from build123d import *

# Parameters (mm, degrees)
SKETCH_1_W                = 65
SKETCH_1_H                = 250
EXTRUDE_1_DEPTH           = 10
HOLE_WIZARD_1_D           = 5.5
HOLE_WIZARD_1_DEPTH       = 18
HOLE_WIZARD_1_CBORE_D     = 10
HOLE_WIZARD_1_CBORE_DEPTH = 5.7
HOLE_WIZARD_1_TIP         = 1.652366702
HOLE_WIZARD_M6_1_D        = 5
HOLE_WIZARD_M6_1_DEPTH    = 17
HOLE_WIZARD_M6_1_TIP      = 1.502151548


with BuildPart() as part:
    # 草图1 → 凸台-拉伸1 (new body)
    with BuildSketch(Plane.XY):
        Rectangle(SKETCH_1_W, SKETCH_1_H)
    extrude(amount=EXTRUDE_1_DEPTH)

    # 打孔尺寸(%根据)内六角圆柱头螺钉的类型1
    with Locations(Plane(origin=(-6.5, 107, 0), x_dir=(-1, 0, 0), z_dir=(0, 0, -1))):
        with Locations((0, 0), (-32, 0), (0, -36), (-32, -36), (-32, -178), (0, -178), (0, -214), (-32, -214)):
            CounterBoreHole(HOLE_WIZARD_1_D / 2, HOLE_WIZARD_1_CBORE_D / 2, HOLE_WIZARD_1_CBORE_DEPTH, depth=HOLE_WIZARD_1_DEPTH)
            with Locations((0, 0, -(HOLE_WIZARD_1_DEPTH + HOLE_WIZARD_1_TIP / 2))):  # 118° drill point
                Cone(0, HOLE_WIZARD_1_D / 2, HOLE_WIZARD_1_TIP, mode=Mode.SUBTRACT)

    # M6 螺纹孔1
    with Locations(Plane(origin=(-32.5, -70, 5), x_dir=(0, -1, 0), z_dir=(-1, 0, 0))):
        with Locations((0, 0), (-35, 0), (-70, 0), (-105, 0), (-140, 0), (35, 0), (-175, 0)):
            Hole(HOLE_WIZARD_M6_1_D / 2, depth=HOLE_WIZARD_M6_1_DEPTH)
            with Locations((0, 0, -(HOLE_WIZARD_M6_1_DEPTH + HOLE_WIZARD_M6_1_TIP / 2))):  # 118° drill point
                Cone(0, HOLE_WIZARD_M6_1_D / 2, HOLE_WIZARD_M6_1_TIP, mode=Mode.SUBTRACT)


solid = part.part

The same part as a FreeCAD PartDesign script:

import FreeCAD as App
import Part
import Sketcher

V = App.Vector
Q = App.Units.Quantity

doc = App.newDocument("Part")
body = doc.addObject("PartDesign::Body", "Body")

# Sketch on XY plane
sketch1 = body.newObject("Sketcher::SketchObject", "Sketch")
sketch1.AttachmentSupport = (doc.getObject("XY_Plane"), [""])
sketch1.MapMode = "FlatFace"
sketch1.addGeometry([
    Part.LineSegment(V(-32.5, 125, 0), V(-32.5, -125, 0)),
    Part.LineSegment(V(-32.5, -125, 0), V(32.5, -125, 0)),
    Part.LineSegment(V(32.5, -125, 0), V(32.5, 125, 0)),
    Part.LineSegment(V(32.5, 125, 0), V(-32.5, 125, 0)),
], False)
sketch1.addConstraint([
    Sketcher.Constraint("Coincident", 0, 2, 1, 1),
    Sketcher.Constraint("Coincident", 1, 2, 2, 1),
    Sketcher.Constraint("Coincident", 2, 2, 3, 1),
    Sketcher.Constraint("Coincident", 3, 2, 0, 1),
    Sketcher.Constraint("Vertical", 0),
    Sketcher.Constraint("Horizontal", 1),
    Sketcher.Constraint("Vertical", 2),
    Sketcher.Constraint("Horizontal", 3),
    Sketcher.Constraint("Symmetric", 0, 2, 2, 2, -1, 1),
    Sketcher.Constraint("DistanceX", 1, 1, 1, 2, Q("65 mm")),
    Sketcher.Constraint("DistanceY", 0, 2, 0, 1, Q("250 mm")),
])
pad1 = body.newObject("PartDesign::Pad", "Pad")
pad1.Profile = sketch1
pad1.Length = 10

# Sketch on XY plane
sketch2 = body.newObject("Sketcher::SketchObject", "Sketch001")
sketch2.AttachmentSupport = (doc.getObject("XY_Plane"), [""])
sketch2.MapMode = "FlatFace"
sketch2.addGeometry([
    Part.Circle(V(-6.5, 107, 0), V(0, 0, 1), 2.75),  # 0
    Part.Circle(V(25.5, 107, 0), V(0, 0, 1), 2.75),  # 1
    Part.Circle(V(-6.5, 71, 0), V(0, 0, 1), 2.75),  # 2
    Part.Circle(V(25.5, 71, 0), V(0, 0, 1), 2.75),  # 3
    Part.Circle(V(25.5, -71, 0), V(0, 0, 1), 2.75),  # 4
    Part.Circle(V(-6.5, -71, 0), V(0, 0, 1), 2.75),  # 5
    Part.Circle(V(-6.5, -107, 0), V(0, 0, 1), 2.75),  # 6
    Part.Circle(V(25.5, -107, 0), V(0, 0, 1), 2.75),  # 7
], False)
sketch2.addConstraint([
    Sketcher.Constraint("Equal", 0, 1),
    Sketcher.Constraint("Equal", 1, 2),
    Sketcher.Constraint("Equal", 2, 3),
    Sketcher.Constraint("Equal", 3, 4),
    Sketcher.Constraint("Equal", 4, 5),
    Sketcher.Constraint("Equal", 5, 6),
    Sketcher.Constraint("Equal", 6, 7),
    Sketcher.Constraint("Symmetric", 3, 3, 4, 3, -1),
    Sketcher.Constraint("Symmetric", 2, 3, 5, 3, -1),
    Sketcher.Constraint("Symmetric", 0, 3, 6, 3, -1),
    Sketcher.Constraint("Symmetric", 1, 3, 7, 3, -1),
    Sketcher.Constraint("Horizontal", 0, 3, 1, 3),
    Sketcher.Constraint("Horizontal", 2, 3, 3, 3),
    Sketcher.Constraint("Vertical", 0, 3, 2, 3),
    Sketcher.Constraint("Vertical", 1, 3, 3, 3),
    Sketcher.Constraint("Diameter", 0, Q("5.5 mm")),
    Sketcher.Constraint("DistanceY", -1, 1, 0, 3, Q("107 mm")),
    Sketcher.Constraint("DistanceY", -1, 1, 2, 3, Q("71 mm")),
    Sketcher.Constraint("DistanceX", 0, 3, 1, 3, Q("32 mm")),
    Sketcher.Constraint("DistanceX", 0, 3, -1, 1, Q("6.5 mm")),
])
doc.recompute()
hole = body.newObject("PartDesign::Hole", "Hole")
hole.Profile = sketch2
hole.ThreadType = "None"
hole.Diameter = 5.5
hole.DepthType = "Dimension"
hole.Depth = 18
hole.DrillPoint = "Angled"
hole.DrillPointAngle = 118
hole.HoleCutType = "Counterbore"
hole.HoleCutDiameter = 10
hole.HoleCutDepth = 5.7
hole.Reversed = True

# Sketch on YZ plane
sketch3 = body.newObject("Sketcher::SketchObject", "Sketch002")
sketch3.AttachmentSupport = (doc.getObject("YZ_Plane"), [""])
sketch3.MapMode = "FlatFace"
sketch3.AttachmentOffset = App.Placement(V(0, 0, -32.5), App.Rotation())
sketch3.addGeometry([
    Part.Circle(V(-70, 5, 0), V(0, 0, 1), 2.5),  # 0
    Part.Circle(V(-35, 5, 0), V(0, 0, 1), 2.5),  # 1
    Part.Circle(V(0, 5, 0), V(0, 0, 1), 2.5),  # 2
    Part.Circle(V(35, 5, 0), V(0, 0, 1), 2.5),  # 3
    Part.Circle(V(70, 5, 0), V(0, 0, 1), 2.5),  # 4
    Part.Circle(V(-105, 5, 0), V(0, 0, 1), 2.5),  # 5
    Part.Circle(V(105, 5, 0), V(0, 0, 1), 2.5),  # 6
], False)
sketch3.addConstraint([
    Sketcher.Constraint("Equal", 0, 1),
    Sketcher.Constraint("Equal", 1, 2),
    Sketcher.Constraint("Equal", 2, 3),
    Sketcher.Constraint("Equal", 3, 4),
    Sketcher.Constraint("Equal", 4, 5),
    Sketcher.Constraint("Equal", 5, 6),
    Sketcher.Constraint("Symmetric", 1, 3, 3, 3, -2),
    Sketcher.Constraint("Symmetric", 0, 3, 4, 3, -2),
    Sketcher.Constraint("Symmetric", 5, 3, 6, 3, -2),
    Sketcher.Constraint("PointOnObject", 2, 3, -2),
    Sketcher.Constraint("Horizontal", 0, 3, 1, 3),
    Sketcher.Constraint("Horizontal", 1, 3, 2, 3),
    Sketcher.Constraint("Horizontal", 4, 3, 5, 3),
    Sketcher.Constraint("Diameter", 0, Q("5 mm")),
    Sketcher.Constraint("DistanceX", 0, 3, -1, 1, Q("70 mm")),
    Sketcher.Constraint("DistanceY", -1, 1, 0, 3, Q("5 mm")),
    Sketcher.Constraint("DistanceX", 1, 3, -1, 1, Q("35 mm")),
    Sketcher.Constraint("DistanceX", 5, 3, -1, 1, Q("105 mm")),
])
doc.recompute()
hole2 = body.newObject("PartDesign::Hole", "Hole001")
hole2.Profile = sketch3
hole2.ThreadType = "None"
hole2.Diameter = 5
hole2.DepthType = "Dimension"
hole2.Depth = 17
hole2.DrillPoint = "Angled"
hole2.DrillPointAngle = 118
hole2.Reversed = True

doc.recompute()
